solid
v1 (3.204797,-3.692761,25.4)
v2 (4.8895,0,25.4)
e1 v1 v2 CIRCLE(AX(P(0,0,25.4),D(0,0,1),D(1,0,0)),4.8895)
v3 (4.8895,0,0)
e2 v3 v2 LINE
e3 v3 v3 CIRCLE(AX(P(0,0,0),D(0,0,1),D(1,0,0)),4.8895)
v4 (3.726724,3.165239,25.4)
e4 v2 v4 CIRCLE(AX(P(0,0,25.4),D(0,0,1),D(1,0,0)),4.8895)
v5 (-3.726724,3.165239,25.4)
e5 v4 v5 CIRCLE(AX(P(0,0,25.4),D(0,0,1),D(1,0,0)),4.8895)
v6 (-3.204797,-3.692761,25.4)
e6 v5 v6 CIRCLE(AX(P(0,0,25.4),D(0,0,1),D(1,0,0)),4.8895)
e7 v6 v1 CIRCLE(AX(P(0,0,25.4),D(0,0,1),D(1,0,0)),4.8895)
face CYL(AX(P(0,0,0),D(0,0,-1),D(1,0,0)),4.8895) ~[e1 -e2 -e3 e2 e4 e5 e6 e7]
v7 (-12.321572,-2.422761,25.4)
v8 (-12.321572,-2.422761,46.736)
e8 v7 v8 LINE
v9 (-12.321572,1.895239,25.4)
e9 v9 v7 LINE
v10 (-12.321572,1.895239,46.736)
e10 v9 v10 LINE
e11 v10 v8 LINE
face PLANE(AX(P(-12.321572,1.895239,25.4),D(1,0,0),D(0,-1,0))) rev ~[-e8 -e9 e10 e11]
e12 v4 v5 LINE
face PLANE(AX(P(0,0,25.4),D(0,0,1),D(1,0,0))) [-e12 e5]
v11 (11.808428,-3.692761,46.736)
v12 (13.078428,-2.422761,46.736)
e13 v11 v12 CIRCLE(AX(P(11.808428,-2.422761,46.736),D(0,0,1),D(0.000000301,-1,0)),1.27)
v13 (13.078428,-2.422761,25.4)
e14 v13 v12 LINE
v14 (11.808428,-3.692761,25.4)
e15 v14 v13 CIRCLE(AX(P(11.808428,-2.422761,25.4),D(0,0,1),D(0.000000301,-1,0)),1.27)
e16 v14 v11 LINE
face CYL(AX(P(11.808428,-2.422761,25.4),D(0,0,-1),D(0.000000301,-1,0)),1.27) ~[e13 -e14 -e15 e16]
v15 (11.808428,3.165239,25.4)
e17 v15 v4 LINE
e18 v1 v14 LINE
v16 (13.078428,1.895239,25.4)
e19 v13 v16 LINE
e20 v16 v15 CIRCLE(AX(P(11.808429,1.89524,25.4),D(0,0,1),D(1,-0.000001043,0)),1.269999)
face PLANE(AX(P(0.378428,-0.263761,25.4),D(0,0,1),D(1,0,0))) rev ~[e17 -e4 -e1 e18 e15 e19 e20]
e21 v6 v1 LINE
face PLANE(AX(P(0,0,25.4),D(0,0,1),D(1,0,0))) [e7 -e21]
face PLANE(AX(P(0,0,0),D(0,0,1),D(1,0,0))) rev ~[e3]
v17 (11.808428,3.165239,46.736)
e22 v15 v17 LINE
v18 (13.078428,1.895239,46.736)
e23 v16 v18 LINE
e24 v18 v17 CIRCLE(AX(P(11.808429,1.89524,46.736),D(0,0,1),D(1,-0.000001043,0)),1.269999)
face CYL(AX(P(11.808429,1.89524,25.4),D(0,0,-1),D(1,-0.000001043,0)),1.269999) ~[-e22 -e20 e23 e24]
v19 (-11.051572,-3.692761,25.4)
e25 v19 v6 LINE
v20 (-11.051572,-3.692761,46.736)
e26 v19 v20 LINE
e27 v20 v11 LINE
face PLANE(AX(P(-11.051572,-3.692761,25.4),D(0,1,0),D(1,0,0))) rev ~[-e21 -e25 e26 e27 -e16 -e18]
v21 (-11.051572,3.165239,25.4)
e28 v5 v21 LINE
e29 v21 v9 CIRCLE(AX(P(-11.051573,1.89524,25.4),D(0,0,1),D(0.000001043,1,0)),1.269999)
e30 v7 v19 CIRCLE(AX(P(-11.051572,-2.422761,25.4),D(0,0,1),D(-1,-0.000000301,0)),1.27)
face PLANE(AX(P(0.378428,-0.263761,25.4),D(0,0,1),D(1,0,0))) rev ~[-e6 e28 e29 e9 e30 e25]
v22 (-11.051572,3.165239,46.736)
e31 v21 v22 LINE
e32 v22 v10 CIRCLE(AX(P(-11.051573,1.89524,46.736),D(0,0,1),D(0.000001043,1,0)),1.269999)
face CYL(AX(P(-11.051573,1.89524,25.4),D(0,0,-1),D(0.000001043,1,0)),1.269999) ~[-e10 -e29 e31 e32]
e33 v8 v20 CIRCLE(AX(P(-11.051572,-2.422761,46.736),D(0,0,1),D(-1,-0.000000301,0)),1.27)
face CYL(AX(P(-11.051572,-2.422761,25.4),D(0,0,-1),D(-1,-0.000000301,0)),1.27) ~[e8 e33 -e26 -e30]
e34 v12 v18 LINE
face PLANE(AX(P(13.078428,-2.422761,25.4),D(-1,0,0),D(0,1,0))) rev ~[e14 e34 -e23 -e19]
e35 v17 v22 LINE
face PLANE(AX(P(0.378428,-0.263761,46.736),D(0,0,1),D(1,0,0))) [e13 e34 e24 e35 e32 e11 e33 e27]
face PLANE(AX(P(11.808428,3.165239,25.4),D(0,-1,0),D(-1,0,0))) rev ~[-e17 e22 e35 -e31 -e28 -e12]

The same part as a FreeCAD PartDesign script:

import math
import FreeCAD as App
import Part
import Sketcher

V = App.Vector
Q = App.Units.Quantity

doc = App.newDocument("Part")
body = doc.addObject("PartDesign::Body", "Body")

# Sketch on XY plane
sketch1 = body.newObject("Sketcher::SketchObject", "Sketch")
sketch1.AttachmentSupport = (doc.getObject("XY_Plane"), [""])
sketch1.MapMode = "FlatFace"
sketch1.addGeometry(Part.Circle(V(0, 0, 0), V(0, 0, 1), 4.9), False)
sketch1.addConstraint([
    Sketcher.Constraint("Coincident", 0, 3, -1, 1),
    Sketcher.Constraint("Diameter", 0, Q("0.385 in")),
])
pad1 = body.newObject("PartDesign::Pad", "Pad")
pad1.Profile = sketch1
pad1.Length = Q("1 in")

# Sketch on XY plane
sketch2 = body.newObject("Sketcher::SketchObject", "Sketch001")
sketch2.AttachmentSupport = (doc.getObject("XY_Plane"), [""])
sketch2.MapMode = "FlatFace"
sketch2.AttachmentOffset = App.Placement(V(0, 0, 1 * 25.4), App.Rotation())
sketch2.addGeometry([
    Part.LineSegment(V(11.8, 3.2, 0), V(-11.1, 3.2, 0)),  # 0
    Part.ArcOfCircle(Part.Circle(V(-11.1, 1.9, 0), V(0, 0, 1), 1.3), math.radians(90), math.radians(180)),  # 1
    Part.LineSegment(V(-12.3, 1.9, 0), V(-12.3, -2.4, 0)),  # 2
    Part.ArcOfCircle(Part.Circle(V(-11.1, -2.4, 0), V(0, 0, 1), 1.3), math.radians(-180), math.radians(-90)),  # 3
    Part.LineSegment(V(-11.1, -3.7, 0), V(11.8, -3.7, 0)),  # 4
    Part.ArcOfCircle(Part.Circle(V(11.8, -2.4, 0), V(0, 0, 1), 1.3), math.radians(-90), math.radians(0)),  # 5
    Part.LineSegment(V(13.1, -2.4, 0), V(13.1, 1.9, 0)),  # 6
    Part.ArcOfCircle(Part.Circle(V(11.8, 1.9, 0), V(0, 0, 1), 1.3), math.radians(0), math.radians(90)),  # 7
], False)
sketch2.addConstraint([
    Sketcher.Constraint("Tangent", 0, 2, 1, 1),
    Sketcher.Constraint("Tangent", 1, 2, 2, 1),
    Sketcher.Constraint("Tangent", 2, 2, 3, 1),
    Sketcher.Constraint("Tangent", 3, 2, 4, 1),
    Sketcher.Constraint("Tangent", 4, 2, 5, 1),
    Sketcher.Constraint("Tangent", 5, 2, 6, 1),
    Sketcher.Constraint("Tangent", 6, 2, 7, 1),
    Sketcher.Constraint("Tangent", 7, 2, 0, 1),
    Sketcher.Constraint("Horizontal", 0),
    Sketcher.Constraint("Vertical", 2),
    Sketcher.Constraint("Horizontal", 4),
    Sketcher.Constraint("Vertical", 6),
    Sketcher.Constraint("Equal", 1, 3),
    Sketcher.Constraint("Equal", 3, 5),
    Sketcher.Constraint("Equal", 5, 7),
    Sketcher.Constraint("Radius", 1, Q("0.0499999 in")),
    Sketcher.Constraint("DistanceX", 0, 2, 0, 1, Q("0.9 in")),
    Sketcher.Constraint("DistanceY", 2, 2, 2, 1, Q("0.17 in")),
    Sketcher.Constraint("DistanceY", -1, 1, 1, 3, 1.89524),
    Sketcher.Constraint("DistanceX", 3, 3, -1, 1, 11.051572),
])
pad2 = body.newObject("PartDesign::Pad", "Pad001")
pad2.Profile = sketch2
pad2.Length = Q("0.84 in")

doc.recompute()
